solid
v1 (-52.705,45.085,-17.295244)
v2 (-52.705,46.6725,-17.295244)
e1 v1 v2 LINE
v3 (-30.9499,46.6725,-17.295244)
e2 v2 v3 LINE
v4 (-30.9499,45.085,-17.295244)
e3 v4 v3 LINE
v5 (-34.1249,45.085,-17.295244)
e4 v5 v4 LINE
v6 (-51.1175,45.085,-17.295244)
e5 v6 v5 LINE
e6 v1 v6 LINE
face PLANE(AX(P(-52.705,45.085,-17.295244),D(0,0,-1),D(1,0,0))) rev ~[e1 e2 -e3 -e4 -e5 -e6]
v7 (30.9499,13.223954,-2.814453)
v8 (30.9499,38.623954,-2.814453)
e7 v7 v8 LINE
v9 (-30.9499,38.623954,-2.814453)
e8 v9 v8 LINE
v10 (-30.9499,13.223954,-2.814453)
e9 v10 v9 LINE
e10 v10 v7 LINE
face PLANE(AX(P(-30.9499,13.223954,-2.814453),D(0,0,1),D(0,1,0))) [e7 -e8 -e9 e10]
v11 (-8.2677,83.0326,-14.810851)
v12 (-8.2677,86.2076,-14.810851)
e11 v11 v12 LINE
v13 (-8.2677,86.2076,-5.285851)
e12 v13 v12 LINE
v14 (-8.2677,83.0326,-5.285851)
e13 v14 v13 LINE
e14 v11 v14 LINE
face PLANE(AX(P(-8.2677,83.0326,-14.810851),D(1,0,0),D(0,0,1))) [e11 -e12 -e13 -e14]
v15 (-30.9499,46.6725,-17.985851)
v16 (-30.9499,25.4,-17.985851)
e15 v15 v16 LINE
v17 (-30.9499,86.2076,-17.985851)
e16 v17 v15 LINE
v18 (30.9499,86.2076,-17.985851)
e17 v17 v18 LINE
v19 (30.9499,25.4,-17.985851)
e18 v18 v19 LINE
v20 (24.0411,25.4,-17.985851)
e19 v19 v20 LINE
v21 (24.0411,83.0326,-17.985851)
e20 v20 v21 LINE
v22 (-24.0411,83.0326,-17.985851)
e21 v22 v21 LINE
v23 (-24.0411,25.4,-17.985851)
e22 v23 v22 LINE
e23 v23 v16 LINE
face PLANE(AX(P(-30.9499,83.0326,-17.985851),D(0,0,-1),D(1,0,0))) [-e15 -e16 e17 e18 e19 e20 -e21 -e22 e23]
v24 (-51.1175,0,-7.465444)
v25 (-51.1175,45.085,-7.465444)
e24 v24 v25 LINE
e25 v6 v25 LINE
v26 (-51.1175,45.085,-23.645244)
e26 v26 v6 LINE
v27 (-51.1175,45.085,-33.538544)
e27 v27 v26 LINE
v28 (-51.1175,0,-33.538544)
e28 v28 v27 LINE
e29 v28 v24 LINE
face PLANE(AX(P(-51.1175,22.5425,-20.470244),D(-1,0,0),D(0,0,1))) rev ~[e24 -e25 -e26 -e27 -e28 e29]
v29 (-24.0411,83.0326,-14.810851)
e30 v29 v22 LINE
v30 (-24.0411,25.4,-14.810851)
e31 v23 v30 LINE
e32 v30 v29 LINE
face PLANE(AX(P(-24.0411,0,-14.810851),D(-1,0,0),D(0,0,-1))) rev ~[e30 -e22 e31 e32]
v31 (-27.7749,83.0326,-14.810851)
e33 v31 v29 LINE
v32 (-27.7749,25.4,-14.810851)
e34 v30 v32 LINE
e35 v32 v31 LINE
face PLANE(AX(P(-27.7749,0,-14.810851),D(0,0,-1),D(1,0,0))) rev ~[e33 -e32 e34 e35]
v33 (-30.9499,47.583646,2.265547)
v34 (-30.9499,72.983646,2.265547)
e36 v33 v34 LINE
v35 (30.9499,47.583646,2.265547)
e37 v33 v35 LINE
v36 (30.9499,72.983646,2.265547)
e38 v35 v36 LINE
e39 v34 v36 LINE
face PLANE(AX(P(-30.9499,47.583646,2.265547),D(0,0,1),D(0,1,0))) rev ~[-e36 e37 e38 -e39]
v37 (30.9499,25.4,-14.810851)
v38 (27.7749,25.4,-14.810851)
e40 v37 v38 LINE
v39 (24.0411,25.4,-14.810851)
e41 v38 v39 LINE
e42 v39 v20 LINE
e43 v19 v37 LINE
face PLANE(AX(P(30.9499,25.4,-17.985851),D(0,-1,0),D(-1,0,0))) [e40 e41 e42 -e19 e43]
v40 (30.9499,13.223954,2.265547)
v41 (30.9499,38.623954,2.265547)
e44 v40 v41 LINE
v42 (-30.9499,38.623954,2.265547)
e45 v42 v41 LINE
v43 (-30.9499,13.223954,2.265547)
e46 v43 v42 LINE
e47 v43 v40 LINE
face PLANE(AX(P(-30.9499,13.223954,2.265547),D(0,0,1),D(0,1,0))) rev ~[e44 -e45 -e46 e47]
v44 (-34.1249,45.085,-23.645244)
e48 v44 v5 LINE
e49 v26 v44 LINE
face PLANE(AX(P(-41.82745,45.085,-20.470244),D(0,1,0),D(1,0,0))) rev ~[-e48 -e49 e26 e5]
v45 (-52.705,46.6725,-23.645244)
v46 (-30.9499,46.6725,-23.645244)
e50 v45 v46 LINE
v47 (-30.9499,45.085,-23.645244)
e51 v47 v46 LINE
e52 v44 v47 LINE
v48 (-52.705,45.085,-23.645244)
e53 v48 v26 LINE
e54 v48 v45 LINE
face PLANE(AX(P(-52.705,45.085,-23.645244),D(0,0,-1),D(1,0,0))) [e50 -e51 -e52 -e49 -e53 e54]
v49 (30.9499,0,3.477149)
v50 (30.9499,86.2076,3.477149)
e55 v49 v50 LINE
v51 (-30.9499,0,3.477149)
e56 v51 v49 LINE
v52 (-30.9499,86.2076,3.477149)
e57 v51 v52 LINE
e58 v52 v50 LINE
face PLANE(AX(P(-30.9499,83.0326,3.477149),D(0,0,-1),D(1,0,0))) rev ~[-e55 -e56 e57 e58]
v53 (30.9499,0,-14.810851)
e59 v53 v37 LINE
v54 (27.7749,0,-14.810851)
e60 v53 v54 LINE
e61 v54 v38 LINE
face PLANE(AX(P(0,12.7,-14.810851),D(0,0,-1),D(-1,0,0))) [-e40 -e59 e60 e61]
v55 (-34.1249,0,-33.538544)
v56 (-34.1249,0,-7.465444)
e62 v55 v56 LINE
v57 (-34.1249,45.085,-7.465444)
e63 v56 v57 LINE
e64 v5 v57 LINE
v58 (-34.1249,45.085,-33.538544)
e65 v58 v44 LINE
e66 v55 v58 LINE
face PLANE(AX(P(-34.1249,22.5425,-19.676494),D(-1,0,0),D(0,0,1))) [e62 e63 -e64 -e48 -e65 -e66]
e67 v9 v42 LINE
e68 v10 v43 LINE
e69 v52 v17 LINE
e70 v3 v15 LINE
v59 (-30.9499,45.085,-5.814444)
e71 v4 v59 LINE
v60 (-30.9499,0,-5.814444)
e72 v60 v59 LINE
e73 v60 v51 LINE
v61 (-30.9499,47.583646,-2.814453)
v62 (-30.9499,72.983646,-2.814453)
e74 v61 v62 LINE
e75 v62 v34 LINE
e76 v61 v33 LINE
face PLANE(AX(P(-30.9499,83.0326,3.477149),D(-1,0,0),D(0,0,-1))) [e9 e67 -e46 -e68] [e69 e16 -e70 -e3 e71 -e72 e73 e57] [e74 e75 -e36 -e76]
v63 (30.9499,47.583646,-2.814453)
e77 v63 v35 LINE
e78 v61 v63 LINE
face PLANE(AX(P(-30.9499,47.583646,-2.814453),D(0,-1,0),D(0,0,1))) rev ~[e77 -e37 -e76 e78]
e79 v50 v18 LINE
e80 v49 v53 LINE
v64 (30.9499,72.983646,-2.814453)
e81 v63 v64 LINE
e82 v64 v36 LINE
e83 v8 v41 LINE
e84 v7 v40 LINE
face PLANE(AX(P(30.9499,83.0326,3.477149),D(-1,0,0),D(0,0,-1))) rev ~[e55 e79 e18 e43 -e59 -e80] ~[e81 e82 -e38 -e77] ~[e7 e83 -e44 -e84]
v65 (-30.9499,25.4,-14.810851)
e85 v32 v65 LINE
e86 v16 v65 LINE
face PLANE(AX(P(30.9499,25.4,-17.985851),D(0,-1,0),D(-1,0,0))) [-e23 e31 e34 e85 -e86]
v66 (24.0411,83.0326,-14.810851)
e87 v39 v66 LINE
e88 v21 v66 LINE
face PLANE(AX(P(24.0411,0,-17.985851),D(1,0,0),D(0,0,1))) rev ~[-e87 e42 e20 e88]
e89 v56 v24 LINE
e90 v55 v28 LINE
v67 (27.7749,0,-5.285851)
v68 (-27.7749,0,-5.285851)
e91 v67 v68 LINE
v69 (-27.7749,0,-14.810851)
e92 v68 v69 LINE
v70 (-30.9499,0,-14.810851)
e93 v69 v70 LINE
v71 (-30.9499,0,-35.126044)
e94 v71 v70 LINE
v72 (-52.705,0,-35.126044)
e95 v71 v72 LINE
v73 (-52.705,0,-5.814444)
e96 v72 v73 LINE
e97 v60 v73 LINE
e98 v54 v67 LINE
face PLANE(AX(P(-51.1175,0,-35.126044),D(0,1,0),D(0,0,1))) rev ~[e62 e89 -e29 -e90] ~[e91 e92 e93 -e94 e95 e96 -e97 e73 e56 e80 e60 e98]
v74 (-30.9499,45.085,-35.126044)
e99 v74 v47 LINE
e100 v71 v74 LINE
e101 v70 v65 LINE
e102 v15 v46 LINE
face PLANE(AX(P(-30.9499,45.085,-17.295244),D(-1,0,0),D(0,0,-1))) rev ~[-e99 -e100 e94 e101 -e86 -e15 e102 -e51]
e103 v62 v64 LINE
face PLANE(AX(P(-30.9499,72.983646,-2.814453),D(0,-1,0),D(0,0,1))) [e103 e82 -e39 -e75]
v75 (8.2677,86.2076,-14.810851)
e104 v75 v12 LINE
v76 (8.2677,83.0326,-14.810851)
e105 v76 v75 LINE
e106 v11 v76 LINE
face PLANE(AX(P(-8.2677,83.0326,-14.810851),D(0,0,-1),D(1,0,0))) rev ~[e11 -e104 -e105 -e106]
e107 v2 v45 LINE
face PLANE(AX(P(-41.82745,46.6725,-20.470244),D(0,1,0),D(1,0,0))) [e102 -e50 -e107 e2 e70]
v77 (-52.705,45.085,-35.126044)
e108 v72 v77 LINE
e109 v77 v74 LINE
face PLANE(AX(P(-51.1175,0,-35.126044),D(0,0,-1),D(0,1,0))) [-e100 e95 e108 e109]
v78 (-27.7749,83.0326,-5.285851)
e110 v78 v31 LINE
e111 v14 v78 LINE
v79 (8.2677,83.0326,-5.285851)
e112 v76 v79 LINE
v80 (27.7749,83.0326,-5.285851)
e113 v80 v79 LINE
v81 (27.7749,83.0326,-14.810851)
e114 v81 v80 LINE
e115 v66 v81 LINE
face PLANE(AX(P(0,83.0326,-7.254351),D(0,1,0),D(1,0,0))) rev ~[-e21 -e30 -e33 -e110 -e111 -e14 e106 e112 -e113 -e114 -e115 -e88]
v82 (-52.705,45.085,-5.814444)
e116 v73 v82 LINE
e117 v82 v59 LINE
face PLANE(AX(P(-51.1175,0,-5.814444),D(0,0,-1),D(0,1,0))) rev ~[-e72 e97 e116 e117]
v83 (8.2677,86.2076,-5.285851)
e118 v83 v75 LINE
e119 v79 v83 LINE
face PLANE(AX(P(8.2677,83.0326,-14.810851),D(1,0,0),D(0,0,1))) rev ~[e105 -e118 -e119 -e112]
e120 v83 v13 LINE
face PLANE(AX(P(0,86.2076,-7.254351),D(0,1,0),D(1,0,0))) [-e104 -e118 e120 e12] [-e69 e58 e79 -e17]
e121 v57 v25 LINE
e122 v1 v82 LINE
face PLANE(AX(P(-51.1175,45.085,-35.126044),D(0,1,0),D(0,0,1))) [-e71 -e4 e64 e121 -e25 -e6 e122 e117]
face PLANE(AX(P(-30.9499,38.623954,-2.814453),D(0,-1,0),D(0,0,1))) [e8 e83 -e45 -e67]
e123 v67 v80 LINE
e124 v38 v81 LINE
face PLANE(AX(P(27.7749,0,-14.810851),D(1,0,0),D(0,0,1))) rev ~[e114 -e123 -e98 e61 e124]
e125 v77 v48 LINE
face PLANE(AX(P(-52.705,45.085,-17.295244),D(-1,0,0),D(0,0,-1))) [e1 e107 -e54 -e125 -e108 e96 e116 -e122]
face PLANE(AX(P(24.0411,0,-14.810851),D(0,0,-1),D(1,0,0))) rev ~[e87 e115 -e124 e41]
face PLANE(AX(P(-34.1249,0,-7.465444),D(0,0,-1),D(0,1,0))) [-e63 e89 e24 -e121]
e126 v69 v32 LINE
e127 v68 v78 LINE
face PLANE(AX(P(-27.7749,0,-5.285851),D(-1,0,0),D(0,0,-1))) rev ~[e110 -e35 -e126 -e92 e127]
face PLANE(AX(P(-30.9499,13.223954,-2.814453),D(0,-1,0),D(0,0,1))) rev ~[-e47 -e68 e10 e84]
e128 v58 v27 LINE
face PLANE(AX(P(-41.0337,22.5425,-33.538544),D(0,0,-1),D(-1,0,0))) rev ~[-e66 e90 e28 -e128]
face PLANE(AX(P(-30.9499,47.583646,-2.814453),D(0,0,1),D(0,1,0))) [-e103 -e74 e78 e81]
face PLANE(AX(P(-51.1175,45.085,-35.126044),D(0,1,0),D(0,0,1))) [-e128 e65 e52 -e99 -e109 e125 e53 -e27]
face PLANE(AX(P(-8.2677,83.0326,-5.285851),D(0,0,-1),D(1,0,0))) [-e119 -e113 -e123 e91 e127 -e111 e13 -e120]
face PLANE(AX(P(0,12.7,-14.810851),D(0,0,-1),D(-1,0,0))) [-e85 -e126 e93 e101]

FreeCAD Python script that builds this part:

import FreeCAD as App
import Part
import Sketcher

V = App.Vector
Q = App.Units.Quantity


def add_polygon(sketch, points):
    """Adds a closed chain of lines whose ends are joined by coincident constraints."""
    first, n = sketch.GeometryCount, len(points)
    for a, b in zip(points, points[1:] + points[:1]):
        sketch.addGeometry(Part.LineSegment(App.Vector(*a, 0), App.Vector(*b, 0)), False)
    for i in range(n):
        sketch.addConstraint(Sketcher.Constraint("Coincident", first + i, 2, first + (i + 1) % n, 1))

doc = App.newDocument("Part")
body = doc.addObject("PartDesign::Body", "Body")

sketch1 = body.newObject("Sketcher::SketchObject", "Sketch")
sketch1.AttachmentSupport = (doc.getObject("XZ_Plane"), [""])
sketch1.MapMode = "FlatFace"
add_polygon(sketch1, [(-30.9, 3.5), (30.9, 3.5), (30.9, -18), (24, -18), (24, -14.8), (27.8, -14.8), (27.8, -5.3), (-27.8, -5.3), (-27.8, -14.8), (-24, -14.8), (-24, -18), (-30.9, -18)])
sketch1.addConstraint(Sketcher.Constraint("Horizontal", 0))
sketch1.addConstraint(Sketcher.Constraint("Vertical", 1))
sketch1.addConstraint(Sketcher.Constraint("Horizontal", 2))
sketch1.addConstraint(Sketcher.Constraint("Vertical", 3))
sketch1.addConstraint(Sketcher.Constraint("Horizontal", 4))
sketch1.addConstraint(Sketcher.Constraint("Vertical", 5))
sketch1.addConstraint(Sketcher.Constraint("Horizontal", 6))
sketch1.addConstraint(Sketcher.Constraint("Vertical", 7))
sketch1.addConstraint(Sketcher.Constraint("Horizontal", 8))
sketch1.addConstraint(Sketcher.Constraint("Vertical", 9))
sketch1.addConstraint(Sketcher.Constraint("Horizontal", 10))
sketch1.addConstraint(Sketcher.Constraint("Vertical", 11))
sketch1.addConstraint(Sketcher.Constraint("Symmetric", 4, 2, 7, 2, -2))
sketch1.addConstraint(Sketcher.Constraint("Symmetric", 2, 2, 9, 2, -2))
sketch1.addConstraint(Sketcher.Constraint("Equal", 2, 10))
sketch1.addConstraint(Sketcher.Constraint("DistanceY", 1, 2, 5, 2, Q("0.5 in")))
sketch1.addConstraint(Sketcher.Constraint("DistanceX", 0, 1, 0, 2, Q("2.437 in")))
sketch1.addConstraint(Sketcher.Constraint("DistanceX", 2, 2, 2, 1, Q("0.272 in")))
sketch1.addConstraint(Sketcher.Constraint("DistanceX", 4, 1, 4, 2, Q("0.147 in")))
sketch1.addConstraint(Sketcher.Constraint("DistanceY", 1, 2, 1, 1, Q("0.845 in")))
sketch1.addConstraint(Sketcher.Constraint("DistanceY", 3, 1, 3, 2, Q("0.125 in")))
sketch1.addConstraint(Sketcher.Constraint("DistanceY", -1, 1, 0, 2, Q("3.477149 mm")))
pad1 = body.newObject("PartDesign::Pad", "Pad")
pad1.Profile = sketch1
pad1.Length = Q("3.269 in")
pad1.Reversed = True

sketch2 = body.newObject("Sketcher::SketchObject", "Sketch001")
sketch2.AttachmentSupport = (doc.getObject("XZ_Plane"), [""])
sketch2.MapMode = "FlatFace"
sketch2.AttachmentOffset = App.Placement(V(0, 0, -3.269 * 25.4), App.Rotation())
add_polygon(sketch2, [(-31, -18), (-31, 3), (31, 3), (31, -18)])
sketch2.addConstraint(Sketcher.Constraint("Vertical", 0))
sketch2.addConstraint(Sketcher.Constraint("Horizontal", 1))
sketch2.addConstraint(Sketcher.Constraint("Vertical", 2))
sketch2.addConstraint(Sketcher.Constraint("Horizontal", 3))
sketch2.addConstraint(Sketcher.Constraint("DistanceX", 1, 1, 1, 2, Q("2.437 in")))
sketch2.addConstraint(Sketcher.Constraint("DistanceY", 0, 1, 0, 2, Q("0.845 in")))
sketch2.addConstraint(Sketcher.Constraint("DistanceX", 0, 2, -1, 1, Q("1.2185 in")))
sketch2.addConstraint(Sketcher.Constraint("DistanceY", -1, 1, 0, 2, Q("3.477149 mm")))
pad2 = body.newObject("PartDesign::Pad", "Pad001")
pad2.Profile = sketch2
pad2.Length = Q("0.125 in")
pad2.Reversed = True

sketch3 = body.newObject("Sketcher::SketchObject", "Sketch002")
sketch3.AttachmentSupport = (doc.getObject("XZ_Plane"), [""])
sketch3.MapMode = "FlatFace"
sketch3.AttachmentOffset = App.Placement(V(0, 0, -3.269 * 25.4), App.Rotation())
add_polygon(sketch3, [(-8, -5), (-8, -15), (8, -15), (8, -5)])
sketch3.addConstraint(Sketcher.Constraint("Vertical", 0))
sketch3.addConstraint(Sketcher.Constraint("Horizontal", 1))
sketch3.addConstraint(Sketcher.Constraint("Vertical", 2))
sketch3.addConstraint(Sketcher.Constraint("Horizontal", 3))
sketch3.addConstraint(Sketcher.Constraint("DistanceX", 1, 1, 1, 2, Q("0.651 in")))
sketch3.addConstraint(Sketcher.Constraint("DistanceY", 0, 2, 0, 1, Q("0.375 in")))
sketch3.addConstraint(Sketcher.Constraint("DistanceX", 0, 2, -1, 1, Q("0.3255 in")))
sketch3.addConstraint(Sketcher.Constraint("DistanceY", 0, 2, -1, 1, Q("14.810851 mm")))
pocket1 = body.newObject("PartDesign::Pocket", "Pocket")
pocket1.Profile = sketch3
pocket1.Type = "ThroughAll"

sketch4 = body.newObject("Sketcher::SketchObject", "Sketch003")
sketch4.AttachmentSupport = (doc.getObject("YZ_Plane"), [""])
sketch4.MapMode = "FlatFace"
sketch4.AttachmentOffset = App.Placement(V(0, 0, -1.2185 * 25.4), App.Rotation())
add_polygon(sketch4, [(73, -3), (48, -3), (48, 2), (73, 2)])
add_polygon(sketch4, [(39, -3), (13, -3), (13, 2), (39, 2)])
sketch4.addConstraint(Sketcher.Constraint("Horizontal", 0))
sketch4.addConstraint(Sketcher.Constraint("Vertical", 1))
sketch4.addConstraint(Sketcher.Constraint("Horizontal", 2))
sketch4.addConstraint(Sketcher.Constraint("Vertical", 3))
sketch4.addConstraint(Sketcher.Constraint("Horizontal", 4))
sketch4.addConstraint(Sketcher.Constraint("Vertical", 5))
sketch4.addConstraint(Sketcher.Constraint("Horizontal", 6))
sketch4.addConstraint(Sketcher.Constraint("Vertical", 7))
sketch4.addConstraint(Sketcher.Constraint("Horizontal", 3, 2, 4, 2))
sketch4.addConstraint(Sketcher.Constraint("Horizontal", 2, 2, 5, 2))
sketch4.addConstraint(Sketcher.Constraint("Equal", 2, 4))
sketch4.addConstraint(Sketcher.Constraint("DistanceX", 0, 2, 0, 1, Q("1 in")))
sketch4.addConstraint(Sketcher.Constraint("DistanceY", 1, 1, 1, 2, Q("0.2 in")))
sketch4.addConstraint(Sketcher.Constraint("DistanceX", 4, 2, 0, 2, Q("34.359692 mm")))
sketch4.addConstraint(Sketcher.Constraint("DistanceX", -1, 1, 0, 2, Q("47.583646 mm")))
sketch4.addConstraint(Sketcher.Constraint("DistanceY", 0, 2, -1, 1, Q("2.814453 mm")))
pocket2 = body.newObject("PartDesign::Pocket", "Pocket001")
pocket2.Profile = sketch4
pocket2.Type = "ThroughAll"
pocket2.Reversed = True

sketch5 = body.newObject("Sketcher::SketchObject", "Sketch004")
sketch5.AttachmentSupport = (doc.getObject("YZ_Plane"), [""])
sketch5.MapMode = "FlatFace"
sketch5.AttachmentOffset = App.Placement(V(0, 0, -1.2185 * 25.4), App.Rotation())
add_polygon(sketch5, [(45, -34), (0, -34), (0, -6), (45, -6)])
sketch5.addConstraint(Sketcher.Constraint("Horizontal", 0))
sketch5.addConstraint(Sketcher.Constraint("Vertical", 1))
sketch5.addConstraint(Sketcher.Constraint("Horizontal", 2))
sketch5.addConstraint(Sketcher.Constraint("Vertical", 3))
sketch5.addConstraint(Sketcher.Constraint("PointOnObject", 0, 2, -2))
sketch5.addConstraint(Sketcher.Constraint("DistanceX", 0, 2, 0, 1, Q("1.775 in")))
sketch5.addConstraint(Sketcher.Constraint("DistanceY", 1, 1, 1, 2, Q("1.0915 in")))
sketch5.addConstraint(Sketcher.Constraint("DistanceY", 0, 2, -1, 1, Q("33.538544 mm")))
pad3 = body.newObject("PartDesign::Pad", "Pad002")
pad3.Profile = sketch5
pad3.Length = Q("0.125 in")
pad3.Reversed = True

sketch6 = body.newObject("Sketcher::SketchObject", "Sketch005")
sketch6.AttachmentSupport = (doc.getObject("YZ_Plane"), [""])
sketch6.MapMode = "FlatFace"
sketch6.AttachmentOffset = App.Placement(V(0, 0, -1.3435 * 25.4), App.Rotation())
add_polygon(sketch6, [(45.1, -7.5), (0, -7.5), (0, -5.8), (45.1, -5.8)])
sketch6.addConstraint(Sketcher.Constraint("Horizontal", 0))
sketch6.addConstraint(Sketcher.Constraint("Vertical", 1))
sketch6.addConstraint(Sketcher.Constraint("Horizontal", 2))
sketch6.addConstraint(Sketcher.Constraint("Vertical", 3))
sketch6.addConstraint(Sketcher.Constraint("PointOnObject", 0, 2, -2))
sketch6.addConstraint(Sketcher.Constraint("DistanceX", 0, 2, 0, 1, Q("1.775 in")))
sketch6.addConstraint(Sketcher.Constraint("DistanceY", 1, 1, 1, 2, Q("0.065 in")))
sketch6.addConstraint(Sketcher.Constraint("DistanceY", 0, 2, -1, 1, Q("7.465444 mm")))
pad4 = body.newObject("PartDesign::Pad", "Pad003")
pad4.Profile = sketch6
pad4.Length = Q("0.669 in")
pad4.Reversed = True

sketch7 = body.newObject("Sketcher::SketchObject", "Sketch006")
sketch7.AttachmentSupport = (doc.getObject("XY_Plane"), [""])
sketch7.MapMode = "FlatFace"
sketch7.AttachmentOffset = App.Placement(V(0, 0, -33.538544), App.Rotation())
add_polygon(sketch7, [(-31, 45), (-31, 0), (-51, 0), (-51, 45)])
sketch7.addConstraint(Sketcher.Constraint("Vertical", 0))
sketch7.addConstraint(Sketcher.Constraint("Horizontal", 1))
sketch7.addConstraint(Sketcher.Constraint("Vertical", 2))
sketch7.addConstraint(Sketcher.Constraint("Horizontal", 3))
sketch7.addConstraint(Sketcher.Constraint("PointOnObject", 0, 2, -1))
sketch7.addConstraint(Sketcher.Constraint("DistanceX", 1, 2, 1, 1, Q("0.794 in")))
sketch7.addConstraint(Sketcher.Constraint("DistanceY", 0, 2, 0, 1, Q("1.775 in")))
sketch7.addConstraint(Sketcher.Constraint("DistanceX", 0, 2, -1, 1, Q("1.2185 in")))
pad5 = body.newObject("PartDesign::Pad", "Pad004")
pad5.Profile = sketch7
pad5.Length = Q("0.0625 in")
pad5.Reversed = True

sketch8 = body.newObject("Sketcher::SketchObject", "Sketch007")
sketch8.AttachmentSupport = (doc.getObject("YZ_Plane"), [""])
sketch8.MapMode = "FlatFace"
sketch8.AttachmentOffset = App.Placement(V(0, 0, -2.0125 * 25.4), App.Rotation())
add_polygon(sketch8, [(45, -35), (0, -35), (0, -6), (45, -6)])
sketch8.addConstraint(Sketcher.Constraint("Horizontal", 0))
sketch8.addConstraint(Sketcher.Constraint("Vertical", 1))
sketch8.addConstraint(Sketcher.Constraint("Horizontal", 2))
sketch8.addConstraint(Sketcher.Constraint("Vertical", 3))
sketch8.addConstraint(Sketcher.Constraint("PointOnObject", 0, 2, -2))
sketch8.addConstraint(Sketcher.Constraint("DistanceX", 0, 2, 0, 1, Q("1.775 in")))
sketch8.addConstraint(Sketcher.Constraint("DistanceY", 1, 1, 1, 2, Q("1.154 in")))
sketch8.addConstraint(Sketcher.Constraint("DistanceY", 0, 2, -1, 1, Q("35.126044 mm")))
pad6 = body.newObject("PartDesign::Pad", "Pad005")
pad6.Profile = sketch8
pad6.Length = Q("0.0625 in")
pad6.Reversed = True

sketch9 = body.newObject("Sketcher::SketchObject", "Sketch008")
sketch9.AttachmentSupport = (doc.getObject("XZ_Plane"), [""])
sketch9.MapMode = "FlatFace"
sketch9.AttachmentOffset = App.Placement(V(0, 0, -1.775 * 25.4), App.Rotation())
add_polygon(sketch9, [(-53, -24), (-53, -17), (-31, -17), (-31, -24)])
sketch9.addConstraint(Sketcher.Constraint("Vertical", 0))
sketch9.addConstraint(Sketcher.Constraint("Horizontal", 1))
sketch9.addConstraint(Sketcher.Constraint("Vertical", 2))
sketch9.addConstraint(Sketcher.Constraint("Horizontal", 3))
sketch9.addConstraint(Sketcher.Constraint("DistanceY", 0, 1, 0, 2, Q("0.25 in")))
sketch9.addConstraint(Sketcher.Constraint("DistanceX", 1, 1, 1, 2, Q("0.8565 in")))
sketch9.addConstraint(Sketcher.Constraint("DistanceX", 0, 2, -1, 1, Q("2.075 in")))
sketch9.addConstraint(Sketcher.Constraint("DistanceY", 0, 2, -1, 1, Q("17.295244 mm")))
pad7 = body.newObject("PartDesign::Pad", "Pad006")
pad7.Profile = sketch9
pad7.Length = Q("0.0625 in")
pad7.Reversed = True

sketch10 = body.newObject("Sketcher::SketchObject", "Sketch009")
sketch10.AttachmentSupport = (doc.getObject("XY_Plane"), [""])
sketch10.MapMode = "FlatFace"
sketch10.AttachmentOffset = App.Placement(V(0, 0, -17.985851), App.Rotation())
add_polygon(sketch10, [(31, 25), (31, 0), (-31, 0), (-31, 25)])
sketch10.addConstraint(Sketcher.Constraint("Vertical", 0))
sketch10.addConstraint(Sketcher.Constraint("Horizontal", 1))
sketch10.addConstraint(Sketcher.Constraint("Vertical", 2))
sketch10.addConstraint(Sketcher.Constraint("Horizontal", 3))
sketch10.addConstraint(Sketcher.Constraint("Symmetric", 0, 2, 1, 2, -1, 1))
sketch10.addConstraint(Sketcher.Constraint("DistanceY", 0, 2, 0, 1, Q("1 in")))
sketch10.addConstraint(Sketcher.Constraint("DistanceX", 1, 2, 1, 1, Q("2.437 in")))
pocket3 = body.newObject("PartDesign::Pocket", "Pocket002")
pocket3.Profile = sketch10
pocket3.Length = Q("0.125 in")
pocket3.Reversed = True

doc.recompute()
